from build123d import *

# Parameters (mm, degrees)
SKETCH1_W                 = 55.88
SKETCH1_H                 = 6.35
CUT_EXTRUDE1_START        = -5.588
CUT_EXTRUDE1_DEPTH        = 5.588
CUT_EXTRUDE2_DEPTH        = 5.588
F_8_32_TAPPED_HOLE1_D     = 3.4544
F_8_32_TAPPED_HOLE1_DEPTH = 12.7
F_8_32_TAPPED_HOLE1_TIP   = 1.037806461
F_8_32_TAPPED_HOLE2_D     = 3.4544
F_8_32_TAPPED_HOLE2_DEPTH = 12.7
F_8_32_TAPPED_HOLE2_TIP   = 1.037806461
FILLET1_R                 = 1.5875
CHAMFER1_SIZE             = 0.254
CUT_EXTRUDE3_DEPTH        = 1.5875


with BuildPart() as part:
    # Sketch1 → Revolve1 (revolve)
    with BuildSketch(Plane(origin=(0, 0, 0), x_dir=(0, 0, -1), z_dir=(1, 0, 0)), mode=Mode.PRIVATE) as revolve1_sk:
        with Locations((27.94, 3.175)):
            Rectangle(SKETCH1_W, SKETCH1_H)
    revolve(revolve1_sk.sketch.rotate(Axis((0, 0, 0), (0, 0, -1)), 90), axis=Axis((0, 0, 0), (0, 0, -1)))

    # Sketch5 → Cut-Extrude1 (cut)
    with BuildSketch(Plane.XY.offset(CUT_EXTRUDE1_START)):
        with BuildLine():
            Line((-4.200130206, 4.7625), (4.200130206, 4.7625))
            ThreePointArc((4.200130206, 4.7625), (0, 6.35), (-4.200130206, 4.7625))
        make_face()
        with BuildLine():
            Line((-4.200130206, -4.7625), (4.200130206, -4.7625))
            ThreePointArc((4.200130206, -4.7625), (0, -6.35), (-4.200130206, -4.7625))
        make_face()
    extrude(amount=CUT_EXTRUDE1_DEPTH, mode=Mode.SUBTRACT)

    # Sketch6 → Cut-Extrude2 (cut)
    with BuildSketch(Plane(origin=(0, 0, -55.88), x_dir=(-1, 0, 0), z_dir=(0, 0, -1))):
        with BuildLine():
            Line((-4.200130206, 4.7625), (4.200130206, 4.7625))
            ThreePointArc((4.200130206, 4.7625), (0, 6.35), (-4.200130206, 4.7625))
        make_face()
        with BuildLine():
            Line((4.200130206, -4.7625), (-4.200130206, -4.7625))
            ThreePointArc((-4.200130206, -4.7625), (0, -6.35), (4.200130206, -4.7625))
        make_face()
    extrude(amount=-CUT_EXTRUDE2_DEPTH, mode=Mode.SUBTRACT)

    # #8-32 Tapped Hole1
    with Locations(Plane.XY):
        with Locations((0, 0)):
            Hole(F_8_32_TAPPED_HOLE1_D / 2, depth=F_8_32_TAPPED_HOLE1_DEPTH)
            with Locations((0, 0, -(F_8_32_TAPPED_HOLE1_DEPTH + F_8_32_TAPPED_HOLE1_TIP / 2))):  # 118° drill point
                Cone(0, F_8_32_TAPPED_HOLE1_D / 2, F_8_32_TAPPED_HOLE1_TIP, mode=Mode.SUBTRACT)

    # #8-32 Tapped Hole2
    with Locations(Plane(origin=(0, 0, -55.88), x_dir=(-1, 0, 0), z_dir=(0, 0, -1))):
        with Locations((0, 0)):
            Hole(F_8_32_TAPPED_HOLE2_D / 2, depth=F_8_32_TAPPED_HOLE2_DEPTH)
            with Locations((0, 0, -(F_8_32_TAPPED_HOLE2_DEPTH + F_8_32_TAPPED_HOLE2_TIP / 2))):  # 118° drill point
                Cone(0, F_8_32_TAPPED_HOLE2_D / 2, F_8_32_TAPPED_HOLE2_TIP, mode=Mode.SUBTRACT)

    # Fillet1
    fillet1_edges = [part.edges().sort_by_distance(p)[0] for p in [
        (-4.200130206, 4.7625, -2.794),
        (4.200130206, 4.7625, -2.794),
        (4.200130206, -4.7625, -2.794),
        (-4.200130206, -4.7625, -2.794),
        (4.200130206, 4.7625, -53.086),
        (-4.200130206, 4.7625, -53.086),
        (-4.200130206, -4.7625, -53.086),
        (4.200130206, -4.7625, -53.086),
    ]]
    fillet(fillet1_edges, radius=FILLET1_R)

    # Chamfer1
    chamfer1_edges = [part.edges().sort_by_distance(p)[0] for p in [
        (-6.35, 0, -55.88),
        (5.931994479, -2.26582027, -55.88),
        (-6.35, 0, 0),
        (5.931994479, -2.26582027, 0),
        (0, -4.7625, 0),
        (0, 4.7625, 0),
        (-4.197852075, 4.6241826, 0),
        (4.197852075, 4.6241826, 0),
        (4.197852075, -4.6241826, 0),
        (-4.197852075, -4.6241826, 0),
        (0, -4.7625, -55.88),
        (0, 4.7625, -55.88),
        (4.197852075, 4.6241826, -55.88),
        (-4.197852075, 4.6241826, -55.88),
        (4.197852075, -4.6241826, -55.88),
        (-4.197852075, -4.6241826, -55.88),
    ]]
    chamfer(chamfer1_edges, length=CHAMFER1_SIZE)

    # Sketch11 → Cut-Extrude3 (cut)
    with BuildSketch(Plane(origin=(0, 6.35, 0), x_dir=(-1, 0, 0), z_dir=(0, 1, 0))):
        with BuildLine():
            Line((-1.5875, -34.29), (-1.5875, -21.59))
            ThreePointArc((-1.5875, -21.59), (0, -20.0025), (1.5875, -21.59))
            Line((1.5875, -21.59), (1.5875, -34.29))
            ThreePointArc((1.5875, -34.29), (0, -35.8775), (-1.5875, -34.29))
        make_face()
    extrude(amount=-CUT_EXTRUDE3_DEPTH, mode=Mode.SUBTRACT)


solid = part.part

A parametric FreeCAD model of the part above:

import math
import FreeCAD as App
import Part
import Sketcher
Q = App.Units.Quantity


def edges_at(feature, points):
    """Names of the edges that pass closest to the given points."""
    edges = feature.Shape.Edges
    near = lambda p: min(range(len(edges)), key=lambda i: edges[i].distToShape(Part.Vertex(*p))[0])
    return sorted({f"Edge{near(p) + 1}" for p in points})


def add_polygon(sketch, points):
    """Adds a closed chain of lines whose ends are joined by coincident constraints."""
    first, n = sketch.GeometryCount, len(points)
    for a, b in zip(points, points[1:] + points[:1]):
        sketch.addGeometry(Part.LineSegment(App.Vector(*a, 0), App.Vector(*b, 0)), False)
    for i in range(n):
        sketch.addConstraint(Sketcher.Constraint("Coincident", first + i, 2, first + (i + 1) % n, 1))

doc = App.newDocument("Part")
body = doc.addObject("PartDesign::Body", "Body")

# Sketch on YZ plane
sketch1 = body.newObject("Sketcher::SketchObject", "Sketch")
sketch1.AttachmentSupport = (doc.getObject("YZ_Plane"), [""])
sketch1.MapMode = "FlatFace"
add_polygon(sketch1, [(6, 0), (0, 0), (0, -56), (6, -56)])  # lines 0-3
sketch1.addConstraint([
    Sketcher.Constraint("Horizontal", 0),
    Sketcher.Constraint("Vertical", 1),
    Sketcher.Constraint("Horizontal", 2),
    Sketcher.Constraint("Vertical", 3),
    Sketcher.Constraint("Coincident", 0, 2, -1, 1),
    Sketcher.Constraint("DistanceY", 1, 2, 1, 1, Q("2.2 in")),
    Sketcher.Constraint("DistanceX", 0, 2, 0, 1, Q("0.25 in")),
])
revolution = body.newObject("PartDesign::Revolution", "Revolution")
revolution.Profile = sketch1
revolution.ReferenceAxis = (sketch1, ["V_Axis"])
revolution.Angle = 360

# Sketch on XY plane
sketch2 = body.newObject("Sketcher::SketchObject", "Sketch001")
sketch2.AttachmentSupport = (doc.getObject("XY_Plane"), [""])
sketch2.MapMode = "FlatFace"
sketch2.AttachmentOffset = App.Placement(App.Vector(0, 0, -0.22 * 25.4), App.Rotation())
sketch2.addGeometry([
    Part.LineSegment(App.Vector(-4, 5, 0), App.Vector(4, 5, 0)),
    Part.ArcOfCircle(Part.Circle(App.Vector(0, 0, 0), App.Vector(0, 0, 1), 6), math.radians(49), math.radians(131)),
    Part.LineSegment(App.Vector(4, -5, 0), App.Vector(-4, -5, 0)),
    Part.ArcOfCircle(Part.Circle(App.Vector(0, 0, 0), App.Vector(0, 0, 1), 6), math.radians(-131), math.radians(-49)),
], False)
sketch2.addConstraint([
    Sketcher.Constraint("Coincident", 0, 1, 1, 2),
    Sketcher.Constraint("Coincident", 1, 1, 0, 2),
    Sketcher.Constraint("Coincident", 2, 1, 3, 2),
    Sketcher.Constraint("Coincident", 3, 1, 2, 2),
    Sketcher.Constraint("Horizontal", 0),
    Sketcher.Constraint("Horizontal", 2),
    Sketcher.Constraint("Coincident", 1, 3, -1, 1),
    Sketcher.Constraint("Coincident", 3, 3, -1, 1),
    Sketcher.Constraint("Equal", 1, 3),
    Sketcher.Constraint("Vertical", 1, 1, 2, 1),
    Sketcher.Constraint("Radius", 1, Q("0.25 in")),
    Sketcher.Constraint("DistanceY", -1, 1, 0, 1, Q("0.1875 in")),
])
pocket1 = body.newObject("PartDesign::Pocket", "Pocket")
pocket1.Profile = sketch2
pocket1.Length = Q("0.22 in")
pocket1.Reversed = True

# Sketch on XY plane
sketch3 = body.newObject("Sketcher::SketchObject", "Sketch002")
sketch3.AttachmentSupport = (doc.getObject("XY_Plane"), [""])
sketch3.MapMode = "FlatFace"
sketch3.AttachmentOffset = App.Placement(App.Vector(0, 0, -2.2 * 25.4), App.Rotation())
sketch3.addGeometry([
    Part.LineSegment(App.Vector(4, 5, 0), App.Vector(-4, 5, 0)),
    Part.ArcOfCircle(Part.Circle(App.Vector(0, 0, 0), App.Vector(0, 0, 1), 6), math.radians(49), math.radians(131)),
    Part.LineSegment(App.Vector(-4, -5, 0), App.Vector(4, -5, 0)),
    Part.ArcOfCircle(Part.Circle(App.Vector(0, 0, 0), App.Vector(0, 0, 1), 6), math.radians(-131), math.radians(-49)),
], False)
sketch3.addConstraint([
    Sketcher.Constraint("Coincident", 0, 1, 1, 1),
    Sketcher.Constraint("Coincident", 1, 2, 0, 2),
    Sketcher.Constraint("Coincident", 2, 1, 3, 1),
    Sketcher.Constraint("Coincident", 3, 2, 2, 2),
    Sketcher.Constraint("Horizontal", 0),
    Sketcher.Constraint("Horizontal", 2),
    Sketcher.Constraint("Coincident", 1, 3, -1, 1),
    Sketcher.Constraint("Coincident", 3, 3, -1, 1),
    Sketcher.Constraint("Equal", 1, 3),
    Sketcher.Constraint("Vertical", 1, 2, 2, 1),
    Sketcher.Constraint("Radius", 1, Q("0.25 in")),
    Sketcher.Constraint("DistanceY", -1, 1, 0, 1, Q("0.1875 in")),
])
pocket2 = body.newObject("PartDesign::Pocket", "Pocket001")
pocket2.Profile = sketch3
pocket2.Length = Q("0.22 in")
pocket2.Reversed = True

# Sketch on XY plane
sketch4 = body.newObject("Sketcher::SketchObject", "Sketch003")
sketch4.AttachmentSupport = (doc.getObject("XY_Plane"), [""])
sketch4.MapMode = "FlatFace"
sketch4.addGeometry(Part.Circle(App.Vector(0, 0, 0), App.Vector(0, 0, 1), 1.7), False)
sketch4.addConstraint([
    Sketcher.Constraint("Coincident", 0, 3, -1, 1),
    Sketcher.Constraint("Diameter", 0, Q("0.136 in")),
])
doc.recompute()
hole = body.newObject("PartDesign::Hole", "Hole")
hole.Profile = sketch4
hole.ThreadType = "None"
hole.Diameter = Q("0.136 in")
hole.DepthType = "Dimension"
hole.Depth = Q("0.5 in")
hole.DrillPoint = "Angled"
hole.DrillPointAngle = 118

# Sketch on XY plane
sketch5 = body.newObject("Sketcher::SketchObject", "Sketch004")
sketch5.AttachmentSupport = (doc.getObject("XY_Plane"), [""])
sketch5.MapMode = "FlatFace"
sketch5.AttachmentOffset = App.Placement(App.Vector(0, 0, -2.2 * 25.4), App.Rotation())
sketch5.addGeometry(Part.Circle(App.Vector(0, 0, 0), App.Vector(0, 0, 1), 1.7), False)
sketch5.addConstraint([
    Sketcher.Constraint("Coincident", 0, 3, -1, 1),
    Sketcher.Constraint("Diameter", 0, Q("0.136 in")),
])
doc.recompute()
hole2 = body.newObject("PartDesign::Hole", "Hole001")
hole2.Profile = sketch5
hole2.ThreadType = "None"
hole2.Diameter = Q("0.136 in")
hole2.DepthType = "Dimension"
hole2.Depth = Q("0.5 in")
hole2.DrillPoint = "Angled"
hole2.DrillPointAngle = 118
hole2.Reversed = True
doc.recompute()

fillet = body.newObject("PartDesign::Fillet", "Fillet")
fillet.Base = (hole2, edges_at(hole2, [
    (-4.2, 4.763, -2.794),
    (4.2, 4.763, -2.794),
    (4.2, -4.763, -2.794),
    (-4.2, -4.763, -2.794),
    (4.2, 4.763, -53.086),
    (-4.2, 4.763, -53.086),
    (-4.2, -4.763, -53.086),
    (4.2, -4.763, -53.086),
]))
fillet.Radius = Q("0.0625 in")
doc.recompute()

chamfer = body.newObject("PartDesign::Chamfer", "Chamfer")
chamfer.Base = (fillet, edges_at(fillet, [
    (-6.35, 0, -55.88),
    (5.932, -2.266, -55.88),
    (-6.35, 0, 0),
    (5.932, -2.266, 0),
    (0, -4.763, 0),
    (0, 4.763, 0),
    (-4.198, 4.624, 0),
    (4.198, 4.624, 0),
    (4.198, -4.624, 0),
    (-4.198, -4.624, 0),
    (0, -4.763, -55.88),
    (0, 4.763, -55.88),
    (4.198, 4.624, -55.88),
    (-4.198, 4.624, -55.88),
    (4.198, -4.624, -55.88),
    (-4.198, -4.624, -55.88),
]))
chamfer.Size = Q("0.01 in")

# Sketch on XZ plane
sketch6 = body.newObject("Sketcher::SketchObject", "Sketch005")
sketch6.AttachmentSupport = (doc.getObject("XZ_Plane"), [""])
sketch6.MapMode = "FlatFace"
sketch6.AttachmentOffset = App.Placement(App.Vector(0, 0, -0.25 * 25.4), App.Rotation())
sketch6.addGeometry([
    Part.LineSegment(App.Vector(1.6, -21.6, 0), App.Vector(1.6, -34.3, 0)),
    Part.ArcOfCircle(Part.Circle(App.Vector(0, -34.3, 0), App.Vector(0, 0, 1), 1.6), math.radians(180), math.radians(360)),
    Part.LineSegment(App.Vector(-1.6, -34.3, 0), App.Vector(-1.6, -21.6, 0)),
    Part.ArcOfCircle(Part.Circle(App.Vector(0, -21.6, 0), App.Vector(0, 0, 1), 1.6), math.radians(0), math.radians(180)),
], False)
sketch6.addConstraint([
    Sketcher.Constraint("Tangent", 0, 2, 1, 2),
    Sketcher.Constraint("Tangent", 1, 1, 2, 1),
    Sketcher.Constraint("Tangent", 2, 2, 3, 2),
    Sketcher.Constraint("Tangent", 3, 1, 0, 1),
    Sketcher.Constraint("Vertical", 0),
    Sketcher.Constraint("Vertical", 2),
    Sketcher.Constraint("PointOnObject", 1, 3, -2),
    Sketcher.Constraint("DistanceY", 0, 2, 0, 1, Q("0.5 in")),
    Sketcher.Constraint("Radius", 1, Q("0.0625 in")),
    Sketcher.Constraint("DistanceY", 1, 3, -1, 1, Q("1.35 in")),
])
pocket3 = body.newObject("PartDesign::Pocket", "Pocket002")
pocket3.Profile = sketch6
pocket3.Length = Q("0.0625 in")
pocket3.Reversed = True

doc.recompute()
